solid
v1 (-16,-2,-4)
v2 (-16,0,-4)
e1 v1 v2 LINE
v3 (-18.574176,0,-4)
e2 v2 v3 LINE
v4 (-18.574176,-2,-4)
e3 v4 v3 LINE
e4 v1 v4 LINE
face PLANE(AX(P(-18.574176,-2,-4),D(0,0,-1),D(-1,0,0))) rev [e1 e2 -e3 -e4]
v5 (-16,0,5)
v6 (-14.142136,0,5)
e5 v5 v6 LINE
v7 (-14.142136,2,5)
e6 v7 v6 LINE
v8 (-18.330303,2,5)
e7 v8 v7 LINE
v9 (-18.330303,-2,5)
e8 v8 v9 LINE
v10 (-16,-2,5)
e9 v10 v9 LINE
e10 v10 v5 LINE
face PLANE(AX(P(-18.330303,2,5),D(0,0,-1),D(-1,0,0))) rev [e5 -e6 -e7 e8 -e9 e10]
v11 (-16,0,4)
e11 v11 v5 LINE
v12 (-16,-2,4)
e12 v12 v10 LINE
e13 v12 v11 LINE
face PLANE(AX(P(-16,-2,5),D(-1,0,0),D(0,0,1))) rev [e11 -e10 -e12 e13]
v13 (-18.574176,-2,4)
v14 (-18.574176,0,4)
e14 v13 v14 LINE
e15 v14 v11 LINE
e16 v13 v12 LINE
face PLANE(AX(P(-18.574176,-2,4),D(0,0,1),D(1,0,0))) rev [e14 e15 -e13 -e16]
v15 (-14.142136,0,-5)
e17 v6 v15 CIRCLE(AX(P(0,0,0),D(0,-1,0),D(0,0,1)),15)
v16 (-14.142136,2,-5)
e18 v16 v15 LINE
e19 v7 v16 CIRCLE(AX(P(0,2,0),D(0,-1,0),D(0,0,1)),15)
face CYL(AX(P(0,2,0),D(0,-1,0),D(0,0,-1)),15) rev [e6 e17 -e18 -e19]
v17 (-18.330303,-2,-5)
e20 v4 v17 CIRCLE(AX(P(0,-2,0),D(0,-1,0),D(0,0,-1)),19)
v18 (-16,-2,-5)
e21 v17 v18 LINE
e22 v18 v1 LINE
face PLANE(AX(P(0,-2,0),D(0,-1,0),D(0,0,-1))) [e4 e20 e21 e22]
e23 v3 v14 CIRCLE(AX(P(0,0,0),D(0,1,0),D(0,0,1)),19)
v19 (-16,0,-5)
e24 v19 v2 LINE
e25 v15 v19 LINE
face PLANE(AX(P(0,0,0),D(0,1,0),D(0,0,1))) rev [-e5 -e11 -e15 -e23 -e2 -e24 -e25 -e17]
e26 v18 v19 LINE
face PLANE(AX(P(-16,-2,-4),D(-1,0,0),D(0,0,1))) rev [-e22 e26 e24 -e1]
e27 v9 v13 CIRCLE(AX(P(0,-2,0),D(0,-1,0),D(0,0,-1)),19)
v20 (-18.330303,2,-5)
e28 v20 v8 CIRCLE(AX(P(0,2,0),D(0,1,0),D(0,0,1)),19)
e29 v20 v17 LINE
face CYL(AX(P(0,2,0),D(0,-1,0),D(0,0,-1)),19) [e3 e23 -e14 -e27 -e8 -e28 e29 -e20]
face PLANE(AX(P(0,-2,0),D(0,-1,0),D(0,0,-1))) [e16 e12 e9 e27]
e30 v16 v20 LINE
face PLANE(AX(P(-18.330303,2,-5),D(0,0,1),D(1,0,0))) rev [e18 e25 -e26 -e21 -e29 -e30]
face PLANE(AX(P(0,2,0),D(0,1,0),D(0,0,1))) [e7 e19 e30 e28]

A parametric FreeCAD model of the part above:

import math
import FreeCAD as App
import Part
import Sketcher

doc = App.newDocument("Part")
body = doc.addObject("PartDesign::Body", "Body")

sketch1 = body.newObject("Sketcher::SketchObject", "Sketch")
sketch1.AttachmentSupport = (doc.getObject("XZ_Plane"), [""])
sketch1.MapMode = "FlatFace"
sketch1.addGeometry([
    Part.LineSegment(App.Vector(-14.1, -5, 0), App.Vector(-18.3, -5, 0)),
    Part.ArcOfCircle(Part.Circle(App.Vector(0, 0, 0), App.Vector(0, 0, 1), 19), math.radians(165), math.radians(195)),
    Part.LineSegment(App.Vector(-18.3, 5, 0), App.Vector(-14.1, 5, 0)),
    Part.ArcOfCircle(Part.Circle(App.Vector(0, 0, 0), App.Vector(0, 0, 1), 15), math.radians(161), math.radians(199)),
], False)
sketch1.addConstraint([
    Sketcher.Constraint("Coincident", 0, 2, 1, 2),
    Sketcher.Constraint("Coincident", 1, 1, 2, 1),
    Sketcher.Constraint("Coincident", 2, 2, 3, 1),
    Sketcher.Constraint("Coincident", 3, 2, 0, 1),
    Sketcher.Constraint("Horizontal", 0),
    Sketcher.Constraint("Horizontal", 2),
    Sketcher.Constraint("Coincident", 1, 3, -1, 1),
    Sketcher.Constraint("Coincident", 3, 3, -1, 1),
    Sketcher.Constraint("Vertical", 0, 2, 1, 1),
    Sketcher.Constraint("Radius", 1, 19.0),
    Sketcher.Constraint("Radius", 3, 15.0),
    Sketcher.Constraint("DistanceY", 0, 2, -1, 1, 5.0),
])
pad1 = body.newObject("PartDesign::Pad", "Pad")
pad1.Profile = sketch1
pad1.Length = 2
pad1.Reversed = True

sketch2 = body.newObject("Sketcher::SketchObject", "Sketch001")
sketch2.AttachmentSupport = (doc.getObject("XZ_Plane"), [""])
sketch2.MapMode = "FlatFace"
sketch2.addGeometry([
    Part.LineSegment(App.Vector(-18.3, -5, 0), App.Vector(-16, -5, 0)),
    Part.LineSegment(App.Vector(-16, -5, 0), App.Vector(-16, -4, 0)),
    Part.LineSegment(App.Vector(-16, -4, 0), App.Vector(-18.6, -4, 0)),
    Part.ArcOfCircle(Part.Circle(App.Vector(0, 0, 0), App.Vector(0, 0, 1), 19), math.radians(-167.85), math.radians(-164.74)),
    Part.LineSegment(App.Vector(-16, 5, 0), App.Vector(-18.3, 5, 0)),
    Part.ArcOfCircle(Part.Circle(App.Vector(0, 0, 0), App.Vector(0, 0, 1), 19), math.radians(164.74), math.radians(167.85)),
    Part.LineSegment(App.Vector(-18.6, 4, 0), App.Vector(-16, 4, 0)),
    Part.LineSegment(App.Vector(-16, 4, 0), App.Vector(-16, 5, 0)),
], False)
sketch2.addConstraint([
    Sketcher.Constraint("Coincident", 0, 2, 1, 1),
    Sketcher.Constraint("Coincident", 1, 2, 2, 1),
    Sketcher.Constraint("Coincident", 2, 2, 3, 1),
    Sketcher.Constraint("Coincident", 3, 2, 0, 1),
    Sketcher.Constraint("Coincident", 4, 2, 5, 1),
    Sketcher.Constraint("Coincident", 5, 2, 6, 1),
    Sketcher.Constraint("Coincident", 6, 2, 7, 1),
    Sketcher.Constraint("Coincident", 7, 2, 4, 1),
    Sketcher.Constraint("Horizontal", 0),
    Sketcher.Constraint("Vertical", 1),
    Sketcher.Constraint("Horizontal", 2),
    Sketcher.Constraint("Horizontal", 4),
    Sketcher.Constraint("Horizontal", 6),
    Sketcher.Constraint("Vertical", 7),
    Sketcher.Constraint("Coincident", 3, 3, -1, 1),
    Sketcher.Constraint("Coincident", 5, 3, -1, 1),
    Sketcher.Constraint("Equal", 3, 5),
    Sketcher.Constraint("Symmetric", 1, 2, 6, 2, -1),
    Sketcher.Constraint("Vertical", 3, 2, 4, 2),
    Sketcher.Constraint("Radius", 3, 19.0),
    Sketcher.Constraint("DistanceY", 1, 1, 1, 2, 1.0),
    Sketcher.Constraint("DistanceX", 0, 2, -1, 1, 16.0),
    Sketcher.Constraint("DistanceY", 0, 2, -1, 1, 5.0),
])
pad2 = body.newObject("PartDesign::Pad", "Pad001")
pad2.Profile = sketch2
pad2.Length = 2

doc.recompute()
